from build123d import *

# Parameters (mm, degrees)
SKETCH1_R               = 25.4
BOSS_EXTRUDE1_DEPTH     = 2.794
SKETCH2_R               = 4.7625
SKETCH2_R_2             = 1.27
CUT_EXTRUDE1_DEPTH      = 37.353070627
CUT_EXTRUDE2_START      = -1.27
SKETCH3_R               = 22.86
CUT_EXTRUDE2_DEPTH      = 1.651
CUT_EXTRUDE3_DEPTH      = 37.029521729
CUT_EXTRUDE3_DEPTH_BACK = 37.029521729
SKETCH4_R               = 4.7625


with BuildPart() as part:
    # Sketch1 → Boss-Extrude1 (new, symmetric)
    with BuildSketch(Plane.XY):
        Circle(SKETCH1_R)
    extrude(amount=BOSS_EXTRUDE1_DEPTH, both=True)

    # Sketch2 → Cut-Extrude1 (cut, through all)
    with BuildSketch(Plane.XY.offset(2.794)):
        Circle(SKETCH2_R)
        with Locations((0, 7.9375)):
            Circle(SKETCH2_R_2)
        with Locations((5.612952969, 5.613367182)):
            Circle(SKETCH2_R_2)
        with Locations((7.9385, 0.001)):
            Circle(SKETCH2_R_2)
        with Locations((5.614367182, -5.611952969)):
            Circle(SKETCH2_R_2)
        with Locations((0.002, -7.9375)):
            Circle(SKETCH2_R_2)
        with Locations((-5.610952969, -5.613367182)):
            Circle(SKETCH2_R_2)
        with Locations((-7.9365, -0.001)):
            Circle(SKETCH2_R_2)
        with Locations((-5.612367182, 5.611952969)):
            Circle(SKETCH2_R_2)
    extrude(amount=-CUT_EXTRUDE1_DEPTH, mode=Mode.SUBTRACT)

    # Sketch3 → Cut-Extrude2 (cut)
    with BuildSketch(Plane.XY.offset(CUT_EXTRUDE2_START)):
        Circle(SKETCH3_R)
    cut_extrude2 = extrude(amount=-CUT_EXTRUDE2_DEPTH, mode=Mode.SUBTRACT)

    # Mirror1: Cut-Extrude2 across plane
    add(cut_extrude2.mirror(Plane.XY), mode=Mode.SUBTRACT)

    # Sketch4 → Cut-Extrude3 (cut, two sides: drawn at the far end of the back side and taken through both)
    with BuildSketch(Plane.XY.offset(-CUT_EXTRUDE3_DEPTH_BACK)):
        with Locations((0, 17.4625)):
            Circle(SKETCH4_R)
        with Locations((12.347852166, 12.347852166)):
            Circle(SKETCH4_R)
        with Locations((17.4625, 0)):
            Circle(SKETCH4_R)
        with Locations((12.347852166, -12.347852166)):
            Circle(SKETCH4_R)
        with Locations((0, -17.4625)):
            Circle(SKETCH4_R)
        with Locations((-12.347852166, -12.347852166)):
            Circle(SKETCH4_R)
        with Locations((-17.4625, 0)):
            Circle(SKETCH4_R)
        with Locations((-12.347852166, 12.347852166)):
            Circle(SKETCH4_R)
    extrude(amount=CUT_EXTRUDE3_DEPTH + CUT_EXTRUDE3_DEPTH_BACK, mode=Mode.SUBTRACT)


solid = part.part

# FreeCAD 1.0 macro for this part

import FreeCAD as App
import Part
import Sketcher
from FreeCAD import Vector
Q = App.Units.Quantity

doc = App.newDocument("Part")
params = doc.addObject("Spreadsheet::Sheet", "Params")
for row, (alias, value) in enumerate([
    ("sketch1_diameter", "2 in"),
    ("pad1_length", "0.22 in"),
    ("sketch2_diameter", "0.1 in"),
    ("sketch2_diameter2", "0.375 in"),
    ("sketch3_diameter", "1.8 in"),
    ("pocket2_length", "0.065 in"),
    ("sketch4_diameter", "0.375 in"),
], start=1):
    params.set(f"A{row}", alias)
    params.set(f"B{row}", "=" + value)
    params.setAlias(f"B{row}", alias)

body = doc.addObject("PartDesign::Body", "Body")

sketch1 = body.newObject("Sketcher::SketchObject", "Sketch")
sketch1.AttachmentSupport = (doc.getObject("XY_Plane"), [""])
sketch1.MapMode = "FlatFace"
sketch1.addGeometry(Part.Circle(Vector(0, 0, 0), Vector(0, 0, 1), 25), False)
sketch1.addConstraint([
    Sketcher.Constraint("Coincident", 0, 3, -1, 1),
    Sketcher.Constraint("Diameter", 0, Q("2 in")),
])
sketch1.setExpression("Constraints[1]", "Params.sketch1_diameter")
pad1 = body.newObject("PartDesign::Pad", "Pad")
pad1.Profile = sketch1
pad1.setExpression("Length", "Params.pad1_length")
pad1.Midplane = True

sketch2 = body.newObject("Sketcher::SketchObject", "Sketch001")
sketch2.AttachmentSupport = (doc.getObject("XY_Plane"), [""])
sketch2.MapMode = "FlatFace"
sketch2.AttachmentOffset = App.Placement(Vector(0, 0, 0.11 * 25.4), App.Rotation())
sketch2.addGeometry([
    Part.Circle(Vector(0, 0, 0), Vector(0, 0, 1), 4.8),
    Part.Circle(Vector(0, 7.9, 0), Vector(0, 0, 1), 1.3),
    Part.Circle(Vector(5.6, 5.6, 0), Vector(0, 0, 1), 1.3),
    Part.Circle(Vector(7.9, 0, 0), Vector(0, 0, 1), 1.3),
    Part.Circle(Vector(5.6, -5.6, 0), Vector(0, 0, 1), 1.3),
    Part.Circle(Vector(0, -7.9, 0), Vector(0, 0, 1), 1.3),
    Part.Circle(Vector(-5.6, -5.6, 0), Vector(0, 0, 1), 1.3),
    Part.Circle(Vector(-7.9, 0, 0), Vector(0, 0, 1), 1.3),
    Part.Circle(Vector(-5.6, 5.6, 0), Vector(0, 0, 1), 1.3),
], False)
sketch2.addConstraint([
    Sketcher.Constraint("Coincident", 0, 3, -1, 1),
    Sketcher.Constraint("Equal", 1, 2),
    Sketcher.Constraint("Equal", 2, 3),
    Sketcher.Constraint("Equal", 3, 4),
    Sketcher.Constraint("Equal", 4, 5),
    Sketcher.Constraint("Equal", 5, 6),
    Sketcher.Constraint("Equal", 6, 7),
    Sketcher.Constraint("Equal", 7, 8),
    Sketcher.Constraint("PointOnObject", 1, 3, -2),
    Sketcher.Constraint("Diameter", 1, Q("0.1 in")),
    Sketcher.Constraint("Diameter", 0, Q("0.375 in")),
    Sketcher.Constraint("DistanceY", -1, 1, 1, 3, Q("0.3125 in")),
    Sketcher.Constraint("DistanceY", 5, 3, -1, 1, Q("0.3125 in")),
    Sketcher.Constraint("DistanceX", -1, 1, 3, 3, Q("7.9385 mm")),
    Sketcher.Constraint("DistanceY", -1, 1, 3, 3, Q("0.001 mm")),
    Sketcher.Constraint("DistanceX", -1, 1, 5, 3, Q("0.002 mm")),
    Sketcher.Constraint("DistanceX", 7, 3, -1, 1, Q("7.9365 mm")),
    Sketcher.Constraint("DistanceY", 7, 3, -1, 1, Q("0.001 mm")),
    Sketcher.Constraint("DistanceY", 4, 3, 2, 3, Q("11.22532 mm")),
    Sketcher.Constraint("DistanceX", 6, 3, 4, 3, Q("11.22532 mm")),
    Sketcher.Constraint("DistanceX", 8, 3, 2, 3, Q("11.22532 mm")),
    Sketcher.Constraint("DistanceY", 6, 3, 8, 3, Q("11.22532 mm")),
    Sketcher.Constraint("DistanceX", -1, 1, 2, 3, Q("5.612953 mm")),
    Sketcher.Constraint("DistanceY", -1, 1, 2, 3, Q("5.613367 mm")),
    Sketcher.Constraint("DistanceX", -1, 1, 4, 3, Q("5.614367 mm")),
    Sketcher.Constraint("DistanceY", 6, 3, -1, 1, Q("5.613367 mm")),
])
sketch2.setExpression("Constraints[9]", "Params.sketch2_diameter")
sketch2.setExpression("Constraints[10]", "Params.sketch2_diameter2")
pocket1 = body.newObject("PartDesign::Pocket", "Pocket")
pocket1.Profile = sketch2
pocket1.Type = "ThroughAll"

sketch3 = body.newObject("Sketcher::SketchObject", "Sketch002")
sketch3.AttachmentSupport = (doc.getObject("XY_Plane"), [""])
sketch3.MapMode = "FlatFace"
sketch3.AttachmentOffset = App.Placement(Vector(0, 0, -0.05 * 25.4), App.Rotation())
sketch3.addGeometry(Part.Circle(Vector(0, 0, 0), Vector(0, 0, 1), 23), False)
sketch3.addConstraint([
    Sketcher.Constraint("Coincident", 0, 3, -1, 1),
    Sketcher.Constraint("Diameter", 0, Q("1.8 in")),
])
sketch3.setExpression("Constraints[1]", "Params.sketch3_diameter")
pocket2 = body.newObject("PartDesign::Pocket", "Pocket001")
pocket2.Profile = sketch3
pocket2.setExpression("Length", "Params.pocket2_length")
doc.recompute()

mirrored = body.newObject("PartDesign::Mirrored", "Mirrored")
mirrored.Originals = [pocket2]
mirrored.MirrorPlane = (doc.getObject("XY_Plane"), [""])
body.Tip = mirrored

sketch4 = body.newObject("Sketcher::SketchObject", "Sketch003")
sketch4.AttachmentSupport = (doc.getObject("XY_Plane"), [""])
sketch4.MapMode = "FlatFace"
sketch4.addGeometry([
    Part.Circle(Vector(0, 17.5, 0), Vector(0, 0, 1), 4.8),
    Part.Circle(Vector(12.3, 12.3, 0), Vector(0, 0, 1), 4.8),
    Part.Circle(Vector(17.5, 0, 0), Vector(0, 0, 1), 4.8),
    Part.Circle(Vector(12.3, -12.3, 0), Vector(0, 0, 1), 4.8),
    Part.Circle(Vector(0, -17.5, 0), Vector(0, 0, 1), 4.8),
    Part.Circle(Vector(-12.3, -12.3, 0), Vector(0, 0, 1), 4.8),
    Part.Circle(Vector(-17.5, 0, 0), Vector(0, 0, 1), 4.8),
    Part.Circle(Vector(-12.3, 12.3, 0), Vector(0, 0, 1), 4.8),
], False)
sketch4.addConstraint([
    Sketcher.Constraint("Equal", 0, 1),
    Sketcher.Constraint("Equal", 1, 2),
    Sketcher.Constraint("Equal", 2, 3),
    Sketcher.Constraint("Equal", 3, 4),
    Sketcher.Constraint("Equal", 4, 5),
    Sketcher.Constraint("Equal", 5, 6),
    Sketcher.Constraint("Equal", 6, 7),
    Sketcher.Constraint("Symmetric", 0, 3, 4, 3, -1, 1),
    Sketcher.Constraint("Symmetric", 1, 3, 5, 3, -1, 1),
    Sketcher.Constraint("Symmetric", 2, 3, 6, 3, -1, 1),
    Sketcher.Constraint("Symmetric", 3, 3, 7, 3, -1, 1),
    Sketcher.Constraint("Symmetric", 3, 3, 5, 3, -2),
    Sketcher.Constraint("PointOnObject", 0, 3, -2),
    Sketcher.Constraint("PointOnObject", 2, 3, -1),
    Sketcher.Constraint("Diameter", 0, Q("0.375 in")),
    Sketcher.Constraint("DistanceY", -1, 1, 0, 3, Q("0.6875 in")),
    Sketcher.Constraint("DistanceX", -1, 1, 2, 3, Q("0.6875 in")),
    Sketcher.Constraint("DistanceX", -1, 1, 1, 3, Q("12.347852 mm")),
    Sketcher.Constraint("DistanceY", -1, 1, 1, 3, Q("12.347852 mm")),
])
sketch4.setExpression("Constraints[14]", "Params.sketch4_diameter")
pocket3 = body.newObject("PartDesign::Pocket", "Pocket002")
pocket3.Profile = sketch4
pocket3.Type = "ThroughAll"
pocket3.Midplane = True

doc.recompute()
